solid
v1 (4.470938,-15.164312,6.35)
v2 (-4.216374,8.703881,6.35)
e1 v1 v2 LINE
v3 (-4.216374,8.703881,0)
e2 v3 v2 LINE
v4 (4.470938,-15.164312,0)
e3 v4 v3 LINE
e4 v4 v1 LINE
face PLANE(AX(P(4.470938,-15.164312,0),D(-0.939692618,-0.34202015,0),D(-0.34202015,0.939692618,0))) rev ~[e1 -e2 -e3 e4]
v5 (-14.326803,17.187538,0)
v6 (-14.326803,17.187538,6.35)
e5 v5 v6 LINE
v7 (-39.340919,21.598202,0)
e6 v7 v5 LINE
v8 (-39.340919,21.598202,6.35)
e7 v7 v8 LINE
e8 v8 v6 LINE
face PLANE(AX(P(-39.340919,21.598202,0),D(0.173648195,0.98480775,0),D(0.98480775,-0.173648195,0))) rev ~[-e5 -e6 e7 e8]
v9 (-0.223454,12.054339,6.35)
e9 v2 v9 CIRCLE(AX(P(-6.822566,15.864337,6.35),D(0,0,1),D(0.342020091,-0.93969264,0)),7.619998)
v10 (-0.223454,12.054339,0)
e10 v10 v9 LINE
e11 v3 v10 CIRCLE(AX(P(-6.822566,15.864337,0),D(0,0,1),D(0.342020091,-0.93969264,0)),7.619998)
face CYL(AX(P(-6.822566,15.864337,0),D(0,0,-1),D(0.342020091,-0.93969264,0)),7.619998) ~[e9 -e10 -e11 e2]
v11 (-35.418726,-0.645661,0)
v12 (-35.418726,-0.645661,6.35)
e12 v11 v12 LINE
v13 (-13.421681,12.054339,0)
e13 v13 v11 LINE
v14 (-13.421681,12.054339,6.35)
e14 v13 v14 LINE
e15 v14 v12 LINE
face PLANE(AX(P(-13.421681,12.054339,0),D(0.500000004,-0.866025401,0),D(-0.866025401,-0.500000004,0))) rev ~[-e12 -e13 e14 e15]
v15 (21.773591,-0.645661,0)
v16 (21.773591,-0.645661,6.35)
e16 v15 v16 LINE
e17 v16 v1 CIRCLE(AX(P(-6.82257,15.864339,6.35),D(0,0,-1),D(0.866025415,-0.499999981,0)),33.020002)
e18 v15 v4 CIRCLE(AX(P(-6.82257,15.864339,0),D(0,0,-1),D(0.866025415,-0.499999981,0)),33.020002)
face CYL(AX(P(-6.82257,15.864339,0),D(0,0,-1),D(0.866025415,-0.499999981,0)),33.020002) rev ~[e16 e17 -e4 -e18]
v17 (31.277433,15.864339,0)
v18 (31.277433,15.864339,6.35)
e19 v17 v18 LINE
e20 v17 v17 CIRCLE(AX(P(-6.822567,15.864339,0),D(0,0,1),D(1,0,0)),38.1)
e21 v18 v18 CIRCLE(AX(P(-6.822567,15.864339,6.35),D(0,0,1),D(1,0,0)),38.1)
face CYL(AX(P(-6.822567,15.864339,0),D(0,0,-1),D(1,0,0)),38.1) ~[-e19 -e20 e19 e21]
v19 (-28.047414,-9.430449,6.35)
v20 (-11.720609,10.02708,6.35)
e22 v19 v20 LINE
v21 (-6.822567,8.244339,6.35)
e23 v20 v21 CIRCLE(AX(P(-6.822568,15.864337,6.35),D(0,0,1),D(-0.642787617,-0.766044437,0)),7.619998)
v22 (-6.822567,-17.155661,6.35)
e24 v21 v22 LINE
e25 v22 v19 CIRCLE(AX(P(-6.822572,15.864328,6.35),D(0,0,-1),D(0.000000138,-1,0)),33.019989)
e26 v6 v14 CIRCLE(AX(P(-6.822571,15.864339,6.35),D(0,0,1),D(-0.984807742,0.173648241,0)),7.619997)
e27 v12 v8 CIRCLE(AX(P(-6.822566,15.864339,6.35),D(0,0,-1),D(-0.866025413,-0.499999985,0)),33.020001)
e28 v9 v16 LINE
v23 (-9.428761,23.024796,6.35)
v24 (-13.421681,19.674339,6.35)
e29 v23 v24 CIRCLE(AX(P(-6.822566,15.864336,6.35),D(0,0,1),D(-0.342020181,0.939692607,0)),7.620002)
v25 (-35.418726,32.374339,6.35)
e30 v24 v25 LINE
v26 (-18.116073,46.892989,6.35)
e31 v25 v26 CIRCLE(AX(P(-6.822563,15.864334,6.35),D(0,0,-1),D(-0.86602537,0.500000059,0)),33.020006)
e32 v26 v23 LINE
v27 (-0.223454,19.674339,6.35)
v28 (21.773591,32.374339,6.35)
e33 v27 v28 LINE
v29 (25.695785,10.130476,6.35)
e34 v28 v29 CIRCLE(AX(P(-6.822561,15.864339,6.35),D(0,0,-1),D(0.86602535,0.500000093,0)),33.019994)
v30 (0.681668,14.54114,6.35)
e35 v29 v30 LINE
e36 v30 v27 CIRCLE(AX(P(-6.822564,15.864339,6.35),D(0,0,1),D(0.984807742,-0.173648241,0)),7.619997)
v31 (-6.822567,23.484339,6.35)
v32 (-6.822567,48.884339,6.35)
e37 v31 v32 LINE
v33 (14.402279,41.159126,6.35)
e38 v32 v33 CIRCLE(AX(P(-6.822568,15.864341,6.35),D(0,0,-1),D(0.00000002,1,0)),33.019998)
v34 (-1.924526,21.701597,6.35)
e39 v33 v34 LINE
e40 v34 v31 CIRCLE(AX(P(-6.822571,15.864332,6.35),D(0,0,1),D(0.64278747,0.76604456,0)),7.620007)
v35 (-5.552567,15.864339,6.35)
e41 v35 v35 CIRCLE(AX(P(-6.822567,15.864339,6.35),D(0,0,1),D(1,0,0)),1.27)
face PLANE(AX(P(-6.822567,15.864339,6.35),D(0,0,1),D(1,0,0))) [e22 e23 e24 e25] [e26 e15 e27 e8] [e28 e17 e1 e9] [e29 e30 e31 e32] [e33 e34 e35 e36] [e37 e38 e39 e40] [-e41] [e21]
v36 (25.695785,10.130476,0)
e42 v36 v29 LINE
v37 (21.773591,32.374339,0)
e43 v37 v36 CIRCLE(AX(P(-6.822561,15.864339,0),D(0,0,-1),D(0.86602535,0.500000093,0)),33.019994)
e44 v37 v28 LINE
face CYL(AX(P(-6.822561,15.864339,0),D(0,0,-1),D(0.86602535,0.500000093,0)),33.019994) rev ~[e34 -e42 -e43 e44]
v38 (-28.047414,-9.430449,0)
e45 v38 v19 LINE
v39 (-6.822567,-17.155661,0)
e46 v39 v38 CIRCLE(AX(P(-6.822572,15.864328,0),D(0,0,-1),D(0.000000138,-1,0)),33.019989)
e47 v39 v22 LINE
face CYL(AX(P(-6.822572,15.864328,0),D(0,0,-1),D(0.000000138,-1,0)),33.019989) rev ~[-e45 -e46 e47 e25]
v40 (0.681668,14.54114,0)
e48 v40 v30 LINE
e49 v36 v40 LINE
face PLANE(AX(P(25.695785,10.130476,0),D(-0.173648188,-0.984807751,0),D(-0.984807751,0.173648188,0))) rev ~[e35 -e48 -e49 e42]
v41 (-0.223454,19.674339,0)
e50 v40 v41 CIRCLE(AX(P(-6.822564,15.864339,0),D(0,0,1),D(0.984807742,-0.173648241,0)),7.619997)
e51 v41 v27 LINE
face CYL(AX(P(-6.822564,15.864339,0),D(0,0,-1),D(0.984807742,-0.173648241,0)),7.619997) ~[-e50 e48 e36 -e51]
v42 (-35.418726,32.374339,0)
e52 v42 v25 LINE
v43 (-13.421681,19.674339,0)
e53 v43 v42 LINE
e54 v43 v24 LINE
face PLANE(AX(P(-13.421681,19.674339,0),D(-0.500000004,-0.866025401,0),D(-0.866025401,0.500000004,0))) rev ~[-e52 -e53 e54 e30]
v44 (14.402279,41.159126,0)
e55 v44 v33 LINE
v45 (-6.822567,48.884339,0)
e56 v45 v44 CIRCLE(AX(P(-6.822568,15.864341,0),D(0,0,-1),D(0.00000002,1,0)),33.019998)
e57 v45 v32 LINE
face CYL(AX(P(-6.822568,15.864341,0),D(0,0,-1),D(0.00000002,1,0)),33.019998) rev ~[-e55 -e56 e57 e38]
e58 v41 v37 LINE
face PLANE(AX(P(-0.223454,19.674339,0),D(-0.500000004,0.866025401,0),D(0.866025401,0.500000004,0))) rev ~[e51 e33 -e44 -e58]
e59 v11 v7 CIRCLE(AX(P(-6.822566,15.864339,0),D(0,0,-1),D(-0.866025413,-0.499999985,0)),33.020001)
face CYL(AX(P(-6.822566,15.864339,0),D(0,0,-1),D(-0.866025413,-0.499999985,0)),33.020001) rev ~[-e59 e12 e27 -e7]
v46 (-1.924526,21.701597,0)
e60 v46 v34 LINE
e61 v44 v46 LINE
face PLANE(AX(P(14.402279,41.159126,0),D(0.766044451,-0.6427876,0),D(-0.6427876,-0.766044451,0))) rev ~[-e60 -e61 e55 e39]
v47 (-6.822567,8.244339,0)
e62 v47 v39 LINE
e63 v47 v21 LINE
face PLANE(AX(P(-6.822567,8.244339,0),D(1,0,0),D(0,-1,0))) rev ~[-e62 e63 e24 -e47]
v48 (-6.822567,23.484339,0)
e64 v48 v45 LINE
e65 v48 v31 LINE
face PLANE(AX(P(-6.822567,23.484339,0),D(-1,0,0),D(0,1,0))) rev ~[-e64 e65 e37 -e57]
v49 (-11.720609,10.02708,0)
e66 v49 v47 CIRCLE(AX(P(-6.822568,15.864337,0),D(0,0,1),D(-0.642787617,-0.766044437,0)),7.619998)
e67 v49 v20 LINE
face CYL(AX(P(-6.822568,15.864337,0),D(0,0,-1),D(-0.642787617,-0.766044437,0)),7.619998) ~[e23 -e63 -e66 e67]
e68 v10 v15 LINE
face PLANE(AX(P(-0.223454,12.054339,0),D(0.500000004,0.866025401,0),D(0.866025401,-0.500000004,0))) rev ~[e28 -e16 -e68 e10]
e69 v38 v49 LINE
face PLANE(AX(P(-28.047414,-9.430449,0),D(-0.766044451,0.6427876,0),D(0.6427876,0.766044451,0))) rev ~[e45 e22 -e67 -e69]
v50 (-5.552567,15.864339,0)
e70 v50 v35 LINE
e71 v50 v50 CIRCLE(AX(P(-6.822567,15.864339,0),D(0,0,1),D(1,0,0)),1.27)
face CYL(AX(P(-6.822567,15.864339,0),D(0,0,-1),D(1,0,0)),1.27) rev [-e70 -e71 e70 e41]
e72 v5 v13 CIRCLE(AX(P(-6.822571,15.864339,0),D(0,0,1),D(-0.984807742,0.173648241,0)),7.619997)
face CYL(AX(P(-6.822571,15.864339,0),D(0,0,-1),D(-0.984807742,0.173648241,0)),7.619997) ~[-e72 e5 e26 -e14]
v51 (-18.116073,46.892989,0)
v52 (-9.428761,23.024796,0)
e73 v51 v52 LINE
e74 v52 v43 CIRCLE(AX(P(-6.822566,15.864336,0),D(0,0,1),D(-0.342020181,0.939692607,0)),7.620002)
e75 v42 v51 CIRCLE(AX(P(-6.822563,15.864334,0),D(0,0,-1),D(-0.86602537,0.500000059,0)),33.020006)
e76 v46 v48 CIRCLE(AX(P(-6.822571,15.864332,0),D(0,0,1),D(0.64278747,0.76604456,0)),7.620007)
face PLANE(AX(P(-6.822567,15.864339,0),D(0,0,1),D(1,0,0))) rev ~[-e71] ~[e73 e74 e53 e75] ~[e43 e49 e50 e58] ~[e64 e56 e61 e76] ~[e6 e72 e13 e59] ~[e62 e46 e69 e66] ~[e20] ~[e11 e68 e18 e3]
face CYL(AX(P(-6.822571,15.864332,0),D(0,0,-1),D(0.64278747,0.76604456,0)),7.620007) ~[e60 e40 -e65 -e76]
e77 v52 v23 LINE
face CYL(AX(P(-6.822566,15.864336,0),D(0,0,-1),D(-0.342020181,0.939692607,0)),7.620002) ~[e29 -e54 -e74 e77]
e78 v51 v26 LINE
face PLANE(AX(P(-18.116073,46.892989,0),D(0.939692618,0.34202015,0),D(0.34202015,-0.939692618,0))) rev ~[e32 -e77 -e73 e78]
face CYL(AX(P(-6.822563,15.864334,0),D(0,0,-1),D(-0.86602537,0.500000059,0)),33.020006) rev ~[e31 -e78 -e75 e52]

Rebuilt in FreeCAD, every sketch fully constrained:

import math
import FreeCAD as App
import Part
import Sketcher
from FreeCAD import Vector
Q = App.Units.Quantity

doc = App.newDocument("Part")
params = doc.addObject("Spreadsheet::Sheet", "Params")
for row, (alias, value) in enumerate([
    ("sketch1_diameter", "3 in"),
    ("sketch1_diameter2", "0.1 in"),
    ("sketch1_radius", "0.2999999 in"),
    ("sketch1_radius2", "1.3 in"),
    ("sketch1_radius3", "1.2999999 in"),
    ("pad1_length", "0.25 in"),
], start=1):
    params.set(f"A{row}", alias)
    params.set(f"B{row}", "=" + value)
    params.setAlias(f"B{row}", alias)

body = doc.addObject("PartDesign::Body", "Body")

sketch1 = body.newObject("Sketcher::SketchObject", "Sketch")
sketch1.AttachmentSupport = (doc.getObject("XY_Plane"), [""])
sketch1.MapMode = "FlatFace"
sketch1.addGeometry([
    Part.Circle(Vector(-6.8, 15.9, 0), Vector(0, 0, 1), 38.1),
    Part.LineSegment(Vector(-28, -9.4, 0), Vector(-11.7, 10, 0)),
    Part.ArcOfCircle(Part.Circle(Vector(-6.8, 15.9, 0), Vector(0, 0, 1), 7.6), math.radians(-130), math.radians(-90)),
    Part.LineSegment(Vector(-6.8, 8.2, 0), Vector(-6.8, -17.2, 0)),
    Part.ArcOfCircle(Part.Circle(Vector(-6.8, 15.9, 0), Vector(0, 0, 1), 33), math.radians(-130), math.radians(-90)),
    Part.LineSegment(Vector(-39.3, 21.6, 0), Vector(-14.3, 17.2, 0)),
    Part.ArcOfCircle(Part.Circle(Vector(-6.8, 15.9, 0), Vector(0, 0, 1), 7.6), math.radians(170), math.radians(210)),
    Part.LineSegment(Vector(-13.4, 12.1, 0), Vector(-35.4, -0.6, 0)),
    Part.ArcOfCircle(Part.Circle(Vector(-6.8, 15.9, 0), Vector(0, 0, 1), 33), math.radians(170), math.radians(210)),
    Part.LineSegment(Vector(4.5, -15.2, 0), Vector(-4.2, 8.7, 0)),
    Part.ArcOfCircle(Part.Circle(Vector(-6.8, 15.9, 0), Vector(0, 0, 1), 7.6), math.radians(-70), math.radians(-30)),
    Part.LineSegment(Vector(-0.2, 12.1, 0), Vector(21.8, -0.6, 0)),
    Part.ArcOfCircle(Part.Circle(Vector(-6.8, 15.9, 0), Vector(0, 0, 1), 33), math.radians(-70), math.radians(-30)),
    Part.Circle(Vector(-6.8, 15.9, 0), Vector(0, 0, 1), 1.3),
    Part.LineSegment(Vector(-18.1, 46.9, 0), Vector(-9.4, 23, 0)),
    Part.ArcOfCircle(Part.Circle(Vector(-6.8, 15.9, 0), Vector(0, 0, 1), 7.6), math.radians(110), math.radians(150)),
    Part.LineSegment(Vector(-13.4, 19.7, 0), Vector(-35.4, 32.4, 0)),
    Part.ArcOfCircle(Part.Circle(Vector(-6.8, 15.9, 0), Vector(0, 0, 1), 33), math.radians(110), math.radians(150)),
    Part.LineSegment(Vector(25.7, 10.1, 0), Vector(0.7, 14.5, 0)),
    Part.ArcOfCircle(Part.Circle(Vector(-6.8, 15.9, 0), Vector(0, 0, 1), 7.6), math.radians(-10), math.radians(30)),
    Part.LineSegment(Vector(-0.2, 19.7, 0), Vector(21.8, 32.4, 0)),
    Part.ArcOfCircle(Part.Circle(Vector(-6.8, 15.9, 0), Vector(0, 0, 1), 33), math.radians(-10), math.radians(30)),
    Part.LineSegment(Vector(-6.8, 23.5, 0), Vector(-6.8, 48.9, 0)),
    Part.ArcOfCircle(Part.Circle(Vector(-6.8, 15.9, 0), Vector(0, 0, 1), 33), math.radians(50), math.radians(90)),
    Part.LineSegment(Vector(14.4, 41.2, 0), Vector(-1.9, 21.7, 0)),
    Part.ArcOfCircle(Part.Circle(Vector(-6.8, 15.9, 0), Vector(0, 0, 1), 7.6), math.radians(50), math.radians(90)),
], False)
sketch1.addConstraint([
    Sketcher.Constraint("Coincident", 1, 2, 2, 1),
    Sketcher.Constraint("Coincident", 2, 2, 3, 1),
    Sketcher.Constraint("Coincident", 3, 2, 4, 2),
    Sketcher.Constraint("Coincident", 4, 1, 1, 1),
    Sketcher.Constraint("Coincident", 5, 2, 6, 1),
    Sketcher.Constraint("Coincident", 6, 2, 7, 1),
    Sketcher.Constraint("Coincident", 7, 2, 8, 2),
    Sketcher.Constraint("Coincident", 8, 1, 5, 1),
    Sketcher.Constraint("Coincident", 9, 2, 10, 1),
    Sketcher.Constraint("Coincident", 10, 2, 11, 1),
    Sketcher.Constraint("Coincident", 11, 2, 12, 2),
    Sketcher.Constraint("Coincident", 12, 1, 9, 1),
    Sketcher.Constraint("Coincident", 14, 2, 15, 1),
    Sketcher.Constraint("Coincident", 15, 2, 16, 1),
    Sketcher.Constraint("Coincident", 16, 2, 17, 2),
    Sketcher.Constraint("Coincident", 17, 1, 14, 1),
    Sketcher.Constraint("Coincident", 18, 2, 19, 1),
    Sketcher.Constraint("Coincident", 19, 2, 20, 1),
    Sketcher.Constraint("Coincident", 20, 2, 21, 2),
    Sketcher.Constraint("Coincident", 21, 1, 18, 1),
    Sketcher.Constraint("Coincident", 22, 2, 23, 2),
    Sketcher.Constraint("Coincident", 23, 1, 24, 1),
    Sketcher.Constraint("Coincident", 24, 2, 25, 1),
    Sketcher.Constraint("Coincident", 25, 2, 22, 1),
    Sketcher.Constraint("Vertical", 3),
    Sketcher.Constraint("Vertical", 22),
    Sketcher.Constraint("Coincident", 2, 3, 0, 3),
    Sketcher.Constraint("Coincident", 4, 3, 2, 3),
    Sketcher.Constraint("Coincident", 6, 3, 0, 3),
    Sketcher.Constraint("Coincident", 8, 3, 0, 3),
    Sketcher.Constraint("Coincident", 10, 3, 0, 3),
    Sketcher.Constraint("Coincident", 12, 3, 0, 3),
    Sketcher.Constraint("Coincident", 13, 3, 0, 3),
    Sketcher.Constraint("Coincident", 15, 3, 0, 3),
    Sketcher.Constraint("Coincident", 17, 3, 0, 3),
    Sketcher.Constraint("Coincident", 19, 3, 0, 3),
    Sketcher.Constraint("Coincident", 21, 3, 0, 3),
    Sketcher.Constraint("Coincident", 23, 3, 0, 3),
    Sketcher.Constraint("Coincident", 25, 3, 0, 3),
    Sketcher.Constraint("Equal", 2, 6),
    Sketcher.Constraint("Equal", 6, 10),
    Sketcher.Constraint("Equal", 8, 12),
    Sketcher.Constraint("Equal", 10, 19),
    Sketcher.Constraint("Parallel", 9, 14),
    Sketcher.Constraint("Parallel", 11, 16),
    Sketcher.Constraint("Parallel", 5, 18),
    Sketcher.Constraint("Parallel", 7, 20),
    Sketcher.Constraint("Parallel", 1, 24),
    Sketcher.Constraint("Horizontal", 6, 2, 10, 2),
    Sketcher.Constraint("Horizontal", 7, 2, 11, 2),
    Sketcher.Constraint("Horizontal", 15, 2, 19, 2),
    Sketcher.Constraint("Horizontal", 16, 2, 20, 2),
    Sketcher.Constraint("Vertical", 23, 3, 2, 2),
    Sketcher.Constraint("Vertical", 6, 2, 15, 2),
    Sketcher.Constraint("Vertical", 7, 2, 16, 2),
    Sketcher.Constraint("Vertical", 10, 2, 19, 2),
    Sketcher.Constraint("Vertical", 3, 2, 22, 2),
    Sketcher.Constraint("Equal", 3, 22),
    Sketcher.Constraint("Equal", 1, 5),
    Sketcher.Constraint("Diameter", 0, Q("3 in")),
    Sketcher.Constraint("Diameter", 13, Q("0.1 in")),
    Sketcher.Constraint("Radius", 2, Q("0.2999999 in")),
    Sketcher.Constraint("Radius", 8, Q("1.3 in")),
    Sketcher.Constraint("Radius", 23, Q("1.2999999 in")),
    Sketcher.Constraint("Angle", 1, Q("50.000001 deg")),
    Sketcher.Constraint("Angle", 5, Q("-10.000001 deg")),
    Sketcher.Constraint("Angle", 7, Q("-150 deg")),
    Sketcher.Constraint("Angle", 9, Q("110 deg")),
    Sketcher.Constraint("DistanceY", 6, 2, 16, 2, Q("0.8 in")),
    Sketcher.Constraint("DistanceY", 6, 3, 5, 2, Q("1.323199 mm")),
    Sketcher.Constraint("DistanceY", 10, 2, 18, 2, Q("2.486801 mm")),
    Sketcher.Constraint("DistanceY", -1, 1, 0, 3, Q("15.864339 mm")),
    Sketcher.Constraint("DistanceX", 2, 3, -1, 1, Q("6.822568 mm")),
    Sketcher.Constraint("DistanceX", 1, 2, -1, 1, Q("11.720609 mm")),
    Sketcher.Constraint("DistanceY", -1, 1, 9, 2, Q("8.703881 mm")),
    Sketcher.Constraint("DistanceX", 14, 2, -1, 1, Q("9.428761 mm")),
    Sketcher.Constraint("DistanceX", -1, 1, 23, 1, Q("14.402279 mm")),
])
sketch1.setExpression("Constraints[59]", "Params.sketch1_diameter")
sketch1.setExpression("Constraints[60]", "Params.sketch1_diameter2")
sketch1.setExpression("Constraints[61]", "Params.sketch1_radius")
sketch1.setExpression("Constraints[62]", "Params.sketch1_radius2")
sketch1.setExpression("Constraints[63]", "Params.sketch1_radius3")
pad1 = body.newObject("PartDesign::Pad", "Pad")
pad1.Profile = sketch1
pad1.setExpression("Length", "Params.pad1_length")

doc.recompute()
